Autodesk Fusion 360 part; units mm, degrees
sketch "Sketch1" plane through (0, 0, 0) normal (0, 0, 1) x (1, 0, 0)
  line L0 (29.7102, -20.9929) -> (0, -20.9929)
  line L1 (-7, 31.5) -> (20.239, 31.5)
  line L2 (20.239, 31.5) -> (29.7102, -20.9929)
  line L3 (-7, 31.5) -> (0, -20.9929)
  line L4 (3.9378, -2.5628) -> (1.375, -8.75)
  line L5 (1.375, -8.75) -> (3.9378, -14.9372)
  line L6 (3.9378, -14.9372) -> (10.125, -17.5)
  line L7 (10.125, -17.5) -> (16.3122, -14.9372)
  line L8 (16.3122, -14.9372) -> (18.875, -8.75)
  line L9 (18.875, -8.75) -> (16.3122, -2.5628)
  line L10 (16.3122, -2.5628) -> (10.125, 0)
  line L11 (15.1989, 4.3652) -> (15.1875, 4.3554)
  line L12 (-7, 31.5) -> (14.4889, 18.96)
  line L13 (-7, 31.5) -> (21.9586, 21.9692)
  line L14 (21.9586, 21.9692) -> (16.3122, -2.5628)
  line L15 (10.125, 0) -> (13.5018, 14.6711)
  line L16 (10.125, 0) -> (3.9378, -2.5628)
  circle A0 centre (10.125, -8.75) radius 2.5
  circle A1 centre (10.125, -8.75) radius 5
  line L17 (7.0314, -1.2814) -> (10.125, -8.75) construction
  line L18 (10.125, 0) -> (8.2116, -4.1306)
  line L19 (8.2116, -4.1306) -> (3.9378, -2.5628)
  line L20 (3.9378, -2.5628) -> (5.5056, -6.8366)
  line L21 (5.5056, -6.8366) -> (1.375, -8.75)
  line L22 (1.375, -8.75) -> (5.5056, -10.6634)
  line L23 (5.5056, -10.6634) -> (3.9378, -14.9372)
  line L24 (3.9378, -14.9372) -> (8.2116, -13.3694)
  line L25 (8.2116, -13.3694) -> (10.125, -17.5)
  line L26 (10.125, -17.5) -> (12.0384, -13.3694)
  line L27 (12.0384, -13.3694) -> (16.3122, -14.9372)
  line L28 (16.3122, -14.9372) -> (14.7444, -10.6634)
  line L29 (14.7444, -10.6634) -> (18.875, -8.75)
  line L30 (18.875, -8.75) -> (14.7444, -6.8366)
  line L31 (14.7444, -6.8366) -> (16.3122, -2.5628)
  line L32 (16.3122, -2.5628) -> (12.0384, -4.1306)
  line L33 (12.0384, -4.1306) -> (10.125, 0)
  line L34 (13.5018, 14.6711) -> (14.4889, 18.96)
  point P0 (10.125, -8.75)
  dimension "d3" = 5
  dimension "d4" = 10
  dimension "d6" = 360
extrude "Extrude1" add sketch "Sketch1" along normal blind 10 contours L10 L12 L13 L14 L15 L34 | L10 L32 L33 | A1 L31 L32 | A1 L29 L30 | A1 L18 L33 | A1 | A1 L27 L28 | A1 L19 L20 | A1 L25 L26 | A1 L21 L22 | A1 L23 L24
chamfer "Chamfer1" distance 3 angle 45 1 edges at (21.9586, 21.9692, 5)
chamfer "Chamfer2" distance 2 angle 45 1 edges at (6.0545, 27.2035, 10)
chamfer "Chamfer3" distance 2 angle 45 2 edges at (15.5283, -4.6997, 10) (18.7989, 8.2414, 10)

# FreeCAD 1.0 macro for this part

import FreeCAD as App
import Part
import Sketcher
from FreeCAD import Vector
Q = App.Units.Quantity


def edges_at(feature, points):
    """Names of the edges that pass closest to the given points."""
    edges = feature.Shape.Edges
    near = lambda p: min(range(len(edges)), key=lambda i: edges[i].distToShape(Part.Vertex(*p))[0])
    return sorted({f"Edge{near(p) + 1}" for p in points})

doc = App.newDocument("Part")
body = doc.addObject("PartDesign::Body", "Body")

# Sketch on XY plane
sketch1 = doc.addObject("Sketcher::SketchObject", "Sketch")
body.addObject(sketch1)
sketch1.AttachmentSupport = (doc.XY_Plane, [""])
sketch1.MapMode = "FlatFace"
sketch1.addGeometry(Part.LineSegment(Vector(16.3122, -2.5628, 0), Vector(21.9586, 21.9692, 0)), False)
sketch1.addGeometry(Part.LineSegment(Vector(21.9586, 21.9692, 0), Vector(-7, 31.5, 0)), False)
sketch1.addGeometry(Part.LineSegment(Vector(-7, 31.5, 0), Vector(14.4889, 18.96, 0)), False)
sketch1.addGeometry(Part.LineSegment(Vector(14.4889, 18.96, 0), Vector(13.5018, 14.6711, 0)), False)
sketch1.addGeometry(Part.LineSegment(Vector(13.5018, 14.6711, 0), Vector(10.125, 0, 0)), False)
sketch1.addGeometry(Part.LineSegment(Vector(10.125, 0, 0), Vector(8.2116, -4.1306, 0)), False)
sketch1.addGeometry(Part.LineSegment(Vector(8.2116, -4.1306, 0), Vector(3.9378, -2.5628, 0)), False)
sketch1.addGeometry(Part.LineSegment(Vector(3.9378, -2.5628, 0), Vector(5.5056, -6.8366, 0)), False)
sketch1.addGeometry(Part.LineSegment(Vector(5.5056, -6.8366, 0), Vector(1.375, -8.75, 0)), False)
sketch1.addGeometry(Part.LineSegment(Vector(1.375, -8.75, 0), Vector(5.5056, -10.6634, 0)), False)
sketch1.addGeometry(Part.LineSegment(Vector(5.5056, -10.6634, 0), Vector(3.9378, -14.9372, 0)), False)
sketch1.addGeometry(Part.LineSegment(Vector(3.9378, -14.9372, 0), Vector(8.2116, -13.3694, 0)), False)
sketch1.addGeometry(Part.LineSegment(Vector(8.2116, -13.3694, 0), Vector(10.125, -17.5, 0)), False)
sketch1.addGeometry(Part.LineSegment(Vector(10.125, -17.5, 0), Vector(12.0384, -13.3694, 0)), False)
sketch1.addGeometry(Part.LineSegment(Vector(12.0384, -13.3694, 0), Vector(16.3122, -14.9372, 0)), False)
sketch1.addGeometry(Part.LineSegment(Vector(16.3122, -14.9372, 0), Vector(14.7444, -10.6634, 0)), False)
sketch1.addGeometry(Part.LineSegment(Vector(14.7444, -10.6634, 0), Vector(18.875, -8.75, 0)), False)
sketch1.addGeometry(Part.LineSegment(Vector(18.875, -8.75, 0), Vector(14.7444, -6.8366, 0)), False)
sketch1.addGeometry(Part.LineSegment(Vector(14.7444, -6.8366, 0), Vector(16.3122, -2.5628, 0)), False)
sketch1.addGeometry(Part.Circle(Vector(10.125, -8.75, 0), Vector(0, 0, 1), 2.5), False)
sketch1.addConstraint(Sketcher.Constraint("Coincident", 0, 2, 1, 1))
sketch1.addConstraint(Sketcher.Constraint("Coincident", 1, 2, 2, 1))
sketch1.addConstraint(Sketcher.Constraint("Coincident", 2, 2, 3, 1))
sketch1.addConstraint(Sketcher.Constraint("Coincident", 3, 2, 4, 1))
sketch1.addConstraint(Sketcher.Constraint("Coincident", 4, 2, 5, 1))
sketch1.addConstraint(Sketcher.Constraint("Coincident", 5, 2, 6, 1))
sketch1.addConstraint(Sketcher.Constraint("Coincident", 6, 2, 7, 1))
sketch1.addConstraint(Sketcher.Constraint("Coincident", 7, 2, 8, 1))
sketch1.addConstraint(Sketcher.Constraint("Coincident", 8, 2, 9, 1))
sketch1.addConstraint(Sketcher.Constraint("Coincident", 9, 2, 10, 1))
sketch1.addConstraint(Sketcher.Constraint("Coincident", 10, 2, 11, 1))
sketch1.addConstraint(Sketcher.Constraint("Coincident", 11, 2, 12, 1))
sketch1.addConstraint(Sketcher.Constraint("Coincident", 12, 2, 13, 1))
sketch1.addConstraint(Sketcher.Constraint("Coincident", 13, 2, 14, 1))
sketch1.addConstraint(Sketcher.Constraint("Coincident", 14, 2, 15, 1))
sketch1.addConstraint(Sketcher.Constraint("Coincident", 15, 2, 16, 1))
sketch1.addConstraint(Sketcher.Constraint("Coincident", 16, 2, 17, 1))
sketch1.addConstraint(Sketcher.Constraint("Coincident", 17, 2, 18, 1))
sketch1.addConstraint(Sketcher.Constraint("Coincident", 18, 2, 0, 1))
sketch1.addConstraint(Sketcher.Constraint("PointOnObject", 4, 2, -1))
sketch1.addConstraint(Sketcher.Constraint("Parallel", 0, 3))
sketch1.addConstraint(Sketcher.Constraint("Parallel", 3, 4))
sketch1.addConstraint(Sketcher.Constraint("Perpendicular", 5, 9))
sketch1.addConstraint(Sketcher.Constraint("Perpendicular", 6, 10))
sketch1.addConstraint(Sketcher.Constraint("Perpendicular", 7, 11))
sketch1.addConstraint(Sketcher.Constraint("Perpendicular", 8, 12))
sketch1.addConstraint(Sketcher.Constraint("Perpendicular", 9, 13))
sketch1.addConstraint(Sketcher.Constraint("Perpendicular", 10, 14))
sketch1.addConstraint(Sketcher.Constraint("Perpendicular", 11, 15))
sketch1.addConstraint(Sketcher.Constraint("Perpendicular", 12, 16))
sketch1.addConstraint(Sketcher.Constraint("Perpendicular", 13, 17))
sketch1.addConstraint(Sketcher.Constraint("Perpendicular", 14, 18))
sketch1.addConstraint(Sketcher.Constraint("Horizontal", 19, 3, 8, 2))
sketch1.addConstraint(Sketcher.Constraint("Horizontal", 11, 2, 13, 2))
sketch1.addConstraint(Sketcher.Constraint("Horizontal", 10, 2, 14, 2))
sketch1.addConstraint(Sketcher.Constraint("Horizontal", 9, 2, 15, 2))
sketch1.addConstraint(Sketcher.Constraint("Horizontal", 8, 2, 16, 2))
sketch1.addConstraint(Sketcher.Constraint("Horizontal", 7, 2, 17, 2))
sketch1.addConstraint(Sketcher.Constraint("Horizontal", 6, 2, 18, 2))
sketch1.addConstraint(Sketcher.Constraint("Vertical", 19, 3, 4, 2))
sketch1.addConstraint(Sketcher.Constraint("Vertical", 7, 2, 9, 2))
sketch1.addConstraint(Sketcher.Constraint("Vertical", 6, 2, 10, 2))
sketch1.addConstraint(Sketcher.Constraint("Vertical", 5, 2, 11, 2))
sketch1.addConstraint(Sketcher.Constraint("Vertical", 4, 2, 12, 2))
sketch1.addConstraint(Sketcher.Constraint("Vertical", 15, 2, 17, 2))
sketch1.addConstraint(Sketcher.Constraint("Vertical", 14, 2, 18, 2))
sketch1.addConstraint(Sketcher.Constraint("Equal", 5, 6))
sketch1.addConstraint(Sketcher.Constraint("Equal", 6, 7))
sketch1.addConstraint(Sketcher.Constraint("Equal", 7, 8))
sketch1.addConstraint(Sketcher.Constraint("Diameter", 19, Q("5 mm")))
sketch1.addConstraint(Sketcher.Constraint("DistanceX", 1, 2, -1, 1, Q("7 mm")))
sketch1.addConstraint(Sketcher.Constraint("DistanceY", -1, 1, 1, 2, Q("31.5 mm")))
sketch1.addConstraint(Sketcher.Constraint("DistanceY", 12, 2, -1, 1, Q("17.5 mm")))
sketch1.addConstraint(Sketcher.Constraint("Angle", 3, Q("-102.961 deg")))
sketch1.addConstraint(Sketcher.Constraint("DistanceY", -1, 1, 2, 2, Q("18.96 mm")))
sketch1.addConstraint(Sketcher.Constraint("Distance", 3, Q("4.401 mm")))
sketch1.addConstraint(Sketcher.Constraint("DistanceX", -1, 1, 19, 3, Q("10.125 mm")))
sketch1.addConstraint(Sketcher.Constraint("DistanceY", 3, 2, 0, 2, Q("7.298 mm")))
sketch1.addConstraint(Sketcher.Constraint("DistanceX", 5, 2, 0, 2, Q("13.747 mm")))
sketch1.addConstraint(Sketcher.Constraint("DistanceX", 6, 2, 3, 2, Q("9.564 mm")))
pad1 = doc.addObject("PartDesign::Pad", "Pad")
body.addObject(pad1)
pad1.Profile = sketch1
pad1.Length = 10
doc.recompute()

chamfer = doc.addObject("PartDesign::Chamfer", "Chamfer")
body.addObject(chamfer)
chamfer.Base = (pad1, edges_at(pad1, [(21.959, 21.969, 5)]))
chamfer.Size = 3
doc.recompute()

chamfer2 = doc.addObject("PartDesign::Chamfer", "Chamfer001")
body.addObject(chamfer2)
chamfer2.Base = (chamfer, edges_at(chamfer, [(6.054, 27.203, 10)]))
chamfer2.Size = 2
doc.recompute()

chamfer3 = doc.addObject("PartDesign::Chamfer", "Chamfer002")
body.addObject(chamfer3)
chamfer3.Base = (chamfer2, edges_at(chamfer2, [(15.528, -4.7, 10), (18.799, 8.241, 10)]))
chamfer3.Size = 2

doc.recompute()
